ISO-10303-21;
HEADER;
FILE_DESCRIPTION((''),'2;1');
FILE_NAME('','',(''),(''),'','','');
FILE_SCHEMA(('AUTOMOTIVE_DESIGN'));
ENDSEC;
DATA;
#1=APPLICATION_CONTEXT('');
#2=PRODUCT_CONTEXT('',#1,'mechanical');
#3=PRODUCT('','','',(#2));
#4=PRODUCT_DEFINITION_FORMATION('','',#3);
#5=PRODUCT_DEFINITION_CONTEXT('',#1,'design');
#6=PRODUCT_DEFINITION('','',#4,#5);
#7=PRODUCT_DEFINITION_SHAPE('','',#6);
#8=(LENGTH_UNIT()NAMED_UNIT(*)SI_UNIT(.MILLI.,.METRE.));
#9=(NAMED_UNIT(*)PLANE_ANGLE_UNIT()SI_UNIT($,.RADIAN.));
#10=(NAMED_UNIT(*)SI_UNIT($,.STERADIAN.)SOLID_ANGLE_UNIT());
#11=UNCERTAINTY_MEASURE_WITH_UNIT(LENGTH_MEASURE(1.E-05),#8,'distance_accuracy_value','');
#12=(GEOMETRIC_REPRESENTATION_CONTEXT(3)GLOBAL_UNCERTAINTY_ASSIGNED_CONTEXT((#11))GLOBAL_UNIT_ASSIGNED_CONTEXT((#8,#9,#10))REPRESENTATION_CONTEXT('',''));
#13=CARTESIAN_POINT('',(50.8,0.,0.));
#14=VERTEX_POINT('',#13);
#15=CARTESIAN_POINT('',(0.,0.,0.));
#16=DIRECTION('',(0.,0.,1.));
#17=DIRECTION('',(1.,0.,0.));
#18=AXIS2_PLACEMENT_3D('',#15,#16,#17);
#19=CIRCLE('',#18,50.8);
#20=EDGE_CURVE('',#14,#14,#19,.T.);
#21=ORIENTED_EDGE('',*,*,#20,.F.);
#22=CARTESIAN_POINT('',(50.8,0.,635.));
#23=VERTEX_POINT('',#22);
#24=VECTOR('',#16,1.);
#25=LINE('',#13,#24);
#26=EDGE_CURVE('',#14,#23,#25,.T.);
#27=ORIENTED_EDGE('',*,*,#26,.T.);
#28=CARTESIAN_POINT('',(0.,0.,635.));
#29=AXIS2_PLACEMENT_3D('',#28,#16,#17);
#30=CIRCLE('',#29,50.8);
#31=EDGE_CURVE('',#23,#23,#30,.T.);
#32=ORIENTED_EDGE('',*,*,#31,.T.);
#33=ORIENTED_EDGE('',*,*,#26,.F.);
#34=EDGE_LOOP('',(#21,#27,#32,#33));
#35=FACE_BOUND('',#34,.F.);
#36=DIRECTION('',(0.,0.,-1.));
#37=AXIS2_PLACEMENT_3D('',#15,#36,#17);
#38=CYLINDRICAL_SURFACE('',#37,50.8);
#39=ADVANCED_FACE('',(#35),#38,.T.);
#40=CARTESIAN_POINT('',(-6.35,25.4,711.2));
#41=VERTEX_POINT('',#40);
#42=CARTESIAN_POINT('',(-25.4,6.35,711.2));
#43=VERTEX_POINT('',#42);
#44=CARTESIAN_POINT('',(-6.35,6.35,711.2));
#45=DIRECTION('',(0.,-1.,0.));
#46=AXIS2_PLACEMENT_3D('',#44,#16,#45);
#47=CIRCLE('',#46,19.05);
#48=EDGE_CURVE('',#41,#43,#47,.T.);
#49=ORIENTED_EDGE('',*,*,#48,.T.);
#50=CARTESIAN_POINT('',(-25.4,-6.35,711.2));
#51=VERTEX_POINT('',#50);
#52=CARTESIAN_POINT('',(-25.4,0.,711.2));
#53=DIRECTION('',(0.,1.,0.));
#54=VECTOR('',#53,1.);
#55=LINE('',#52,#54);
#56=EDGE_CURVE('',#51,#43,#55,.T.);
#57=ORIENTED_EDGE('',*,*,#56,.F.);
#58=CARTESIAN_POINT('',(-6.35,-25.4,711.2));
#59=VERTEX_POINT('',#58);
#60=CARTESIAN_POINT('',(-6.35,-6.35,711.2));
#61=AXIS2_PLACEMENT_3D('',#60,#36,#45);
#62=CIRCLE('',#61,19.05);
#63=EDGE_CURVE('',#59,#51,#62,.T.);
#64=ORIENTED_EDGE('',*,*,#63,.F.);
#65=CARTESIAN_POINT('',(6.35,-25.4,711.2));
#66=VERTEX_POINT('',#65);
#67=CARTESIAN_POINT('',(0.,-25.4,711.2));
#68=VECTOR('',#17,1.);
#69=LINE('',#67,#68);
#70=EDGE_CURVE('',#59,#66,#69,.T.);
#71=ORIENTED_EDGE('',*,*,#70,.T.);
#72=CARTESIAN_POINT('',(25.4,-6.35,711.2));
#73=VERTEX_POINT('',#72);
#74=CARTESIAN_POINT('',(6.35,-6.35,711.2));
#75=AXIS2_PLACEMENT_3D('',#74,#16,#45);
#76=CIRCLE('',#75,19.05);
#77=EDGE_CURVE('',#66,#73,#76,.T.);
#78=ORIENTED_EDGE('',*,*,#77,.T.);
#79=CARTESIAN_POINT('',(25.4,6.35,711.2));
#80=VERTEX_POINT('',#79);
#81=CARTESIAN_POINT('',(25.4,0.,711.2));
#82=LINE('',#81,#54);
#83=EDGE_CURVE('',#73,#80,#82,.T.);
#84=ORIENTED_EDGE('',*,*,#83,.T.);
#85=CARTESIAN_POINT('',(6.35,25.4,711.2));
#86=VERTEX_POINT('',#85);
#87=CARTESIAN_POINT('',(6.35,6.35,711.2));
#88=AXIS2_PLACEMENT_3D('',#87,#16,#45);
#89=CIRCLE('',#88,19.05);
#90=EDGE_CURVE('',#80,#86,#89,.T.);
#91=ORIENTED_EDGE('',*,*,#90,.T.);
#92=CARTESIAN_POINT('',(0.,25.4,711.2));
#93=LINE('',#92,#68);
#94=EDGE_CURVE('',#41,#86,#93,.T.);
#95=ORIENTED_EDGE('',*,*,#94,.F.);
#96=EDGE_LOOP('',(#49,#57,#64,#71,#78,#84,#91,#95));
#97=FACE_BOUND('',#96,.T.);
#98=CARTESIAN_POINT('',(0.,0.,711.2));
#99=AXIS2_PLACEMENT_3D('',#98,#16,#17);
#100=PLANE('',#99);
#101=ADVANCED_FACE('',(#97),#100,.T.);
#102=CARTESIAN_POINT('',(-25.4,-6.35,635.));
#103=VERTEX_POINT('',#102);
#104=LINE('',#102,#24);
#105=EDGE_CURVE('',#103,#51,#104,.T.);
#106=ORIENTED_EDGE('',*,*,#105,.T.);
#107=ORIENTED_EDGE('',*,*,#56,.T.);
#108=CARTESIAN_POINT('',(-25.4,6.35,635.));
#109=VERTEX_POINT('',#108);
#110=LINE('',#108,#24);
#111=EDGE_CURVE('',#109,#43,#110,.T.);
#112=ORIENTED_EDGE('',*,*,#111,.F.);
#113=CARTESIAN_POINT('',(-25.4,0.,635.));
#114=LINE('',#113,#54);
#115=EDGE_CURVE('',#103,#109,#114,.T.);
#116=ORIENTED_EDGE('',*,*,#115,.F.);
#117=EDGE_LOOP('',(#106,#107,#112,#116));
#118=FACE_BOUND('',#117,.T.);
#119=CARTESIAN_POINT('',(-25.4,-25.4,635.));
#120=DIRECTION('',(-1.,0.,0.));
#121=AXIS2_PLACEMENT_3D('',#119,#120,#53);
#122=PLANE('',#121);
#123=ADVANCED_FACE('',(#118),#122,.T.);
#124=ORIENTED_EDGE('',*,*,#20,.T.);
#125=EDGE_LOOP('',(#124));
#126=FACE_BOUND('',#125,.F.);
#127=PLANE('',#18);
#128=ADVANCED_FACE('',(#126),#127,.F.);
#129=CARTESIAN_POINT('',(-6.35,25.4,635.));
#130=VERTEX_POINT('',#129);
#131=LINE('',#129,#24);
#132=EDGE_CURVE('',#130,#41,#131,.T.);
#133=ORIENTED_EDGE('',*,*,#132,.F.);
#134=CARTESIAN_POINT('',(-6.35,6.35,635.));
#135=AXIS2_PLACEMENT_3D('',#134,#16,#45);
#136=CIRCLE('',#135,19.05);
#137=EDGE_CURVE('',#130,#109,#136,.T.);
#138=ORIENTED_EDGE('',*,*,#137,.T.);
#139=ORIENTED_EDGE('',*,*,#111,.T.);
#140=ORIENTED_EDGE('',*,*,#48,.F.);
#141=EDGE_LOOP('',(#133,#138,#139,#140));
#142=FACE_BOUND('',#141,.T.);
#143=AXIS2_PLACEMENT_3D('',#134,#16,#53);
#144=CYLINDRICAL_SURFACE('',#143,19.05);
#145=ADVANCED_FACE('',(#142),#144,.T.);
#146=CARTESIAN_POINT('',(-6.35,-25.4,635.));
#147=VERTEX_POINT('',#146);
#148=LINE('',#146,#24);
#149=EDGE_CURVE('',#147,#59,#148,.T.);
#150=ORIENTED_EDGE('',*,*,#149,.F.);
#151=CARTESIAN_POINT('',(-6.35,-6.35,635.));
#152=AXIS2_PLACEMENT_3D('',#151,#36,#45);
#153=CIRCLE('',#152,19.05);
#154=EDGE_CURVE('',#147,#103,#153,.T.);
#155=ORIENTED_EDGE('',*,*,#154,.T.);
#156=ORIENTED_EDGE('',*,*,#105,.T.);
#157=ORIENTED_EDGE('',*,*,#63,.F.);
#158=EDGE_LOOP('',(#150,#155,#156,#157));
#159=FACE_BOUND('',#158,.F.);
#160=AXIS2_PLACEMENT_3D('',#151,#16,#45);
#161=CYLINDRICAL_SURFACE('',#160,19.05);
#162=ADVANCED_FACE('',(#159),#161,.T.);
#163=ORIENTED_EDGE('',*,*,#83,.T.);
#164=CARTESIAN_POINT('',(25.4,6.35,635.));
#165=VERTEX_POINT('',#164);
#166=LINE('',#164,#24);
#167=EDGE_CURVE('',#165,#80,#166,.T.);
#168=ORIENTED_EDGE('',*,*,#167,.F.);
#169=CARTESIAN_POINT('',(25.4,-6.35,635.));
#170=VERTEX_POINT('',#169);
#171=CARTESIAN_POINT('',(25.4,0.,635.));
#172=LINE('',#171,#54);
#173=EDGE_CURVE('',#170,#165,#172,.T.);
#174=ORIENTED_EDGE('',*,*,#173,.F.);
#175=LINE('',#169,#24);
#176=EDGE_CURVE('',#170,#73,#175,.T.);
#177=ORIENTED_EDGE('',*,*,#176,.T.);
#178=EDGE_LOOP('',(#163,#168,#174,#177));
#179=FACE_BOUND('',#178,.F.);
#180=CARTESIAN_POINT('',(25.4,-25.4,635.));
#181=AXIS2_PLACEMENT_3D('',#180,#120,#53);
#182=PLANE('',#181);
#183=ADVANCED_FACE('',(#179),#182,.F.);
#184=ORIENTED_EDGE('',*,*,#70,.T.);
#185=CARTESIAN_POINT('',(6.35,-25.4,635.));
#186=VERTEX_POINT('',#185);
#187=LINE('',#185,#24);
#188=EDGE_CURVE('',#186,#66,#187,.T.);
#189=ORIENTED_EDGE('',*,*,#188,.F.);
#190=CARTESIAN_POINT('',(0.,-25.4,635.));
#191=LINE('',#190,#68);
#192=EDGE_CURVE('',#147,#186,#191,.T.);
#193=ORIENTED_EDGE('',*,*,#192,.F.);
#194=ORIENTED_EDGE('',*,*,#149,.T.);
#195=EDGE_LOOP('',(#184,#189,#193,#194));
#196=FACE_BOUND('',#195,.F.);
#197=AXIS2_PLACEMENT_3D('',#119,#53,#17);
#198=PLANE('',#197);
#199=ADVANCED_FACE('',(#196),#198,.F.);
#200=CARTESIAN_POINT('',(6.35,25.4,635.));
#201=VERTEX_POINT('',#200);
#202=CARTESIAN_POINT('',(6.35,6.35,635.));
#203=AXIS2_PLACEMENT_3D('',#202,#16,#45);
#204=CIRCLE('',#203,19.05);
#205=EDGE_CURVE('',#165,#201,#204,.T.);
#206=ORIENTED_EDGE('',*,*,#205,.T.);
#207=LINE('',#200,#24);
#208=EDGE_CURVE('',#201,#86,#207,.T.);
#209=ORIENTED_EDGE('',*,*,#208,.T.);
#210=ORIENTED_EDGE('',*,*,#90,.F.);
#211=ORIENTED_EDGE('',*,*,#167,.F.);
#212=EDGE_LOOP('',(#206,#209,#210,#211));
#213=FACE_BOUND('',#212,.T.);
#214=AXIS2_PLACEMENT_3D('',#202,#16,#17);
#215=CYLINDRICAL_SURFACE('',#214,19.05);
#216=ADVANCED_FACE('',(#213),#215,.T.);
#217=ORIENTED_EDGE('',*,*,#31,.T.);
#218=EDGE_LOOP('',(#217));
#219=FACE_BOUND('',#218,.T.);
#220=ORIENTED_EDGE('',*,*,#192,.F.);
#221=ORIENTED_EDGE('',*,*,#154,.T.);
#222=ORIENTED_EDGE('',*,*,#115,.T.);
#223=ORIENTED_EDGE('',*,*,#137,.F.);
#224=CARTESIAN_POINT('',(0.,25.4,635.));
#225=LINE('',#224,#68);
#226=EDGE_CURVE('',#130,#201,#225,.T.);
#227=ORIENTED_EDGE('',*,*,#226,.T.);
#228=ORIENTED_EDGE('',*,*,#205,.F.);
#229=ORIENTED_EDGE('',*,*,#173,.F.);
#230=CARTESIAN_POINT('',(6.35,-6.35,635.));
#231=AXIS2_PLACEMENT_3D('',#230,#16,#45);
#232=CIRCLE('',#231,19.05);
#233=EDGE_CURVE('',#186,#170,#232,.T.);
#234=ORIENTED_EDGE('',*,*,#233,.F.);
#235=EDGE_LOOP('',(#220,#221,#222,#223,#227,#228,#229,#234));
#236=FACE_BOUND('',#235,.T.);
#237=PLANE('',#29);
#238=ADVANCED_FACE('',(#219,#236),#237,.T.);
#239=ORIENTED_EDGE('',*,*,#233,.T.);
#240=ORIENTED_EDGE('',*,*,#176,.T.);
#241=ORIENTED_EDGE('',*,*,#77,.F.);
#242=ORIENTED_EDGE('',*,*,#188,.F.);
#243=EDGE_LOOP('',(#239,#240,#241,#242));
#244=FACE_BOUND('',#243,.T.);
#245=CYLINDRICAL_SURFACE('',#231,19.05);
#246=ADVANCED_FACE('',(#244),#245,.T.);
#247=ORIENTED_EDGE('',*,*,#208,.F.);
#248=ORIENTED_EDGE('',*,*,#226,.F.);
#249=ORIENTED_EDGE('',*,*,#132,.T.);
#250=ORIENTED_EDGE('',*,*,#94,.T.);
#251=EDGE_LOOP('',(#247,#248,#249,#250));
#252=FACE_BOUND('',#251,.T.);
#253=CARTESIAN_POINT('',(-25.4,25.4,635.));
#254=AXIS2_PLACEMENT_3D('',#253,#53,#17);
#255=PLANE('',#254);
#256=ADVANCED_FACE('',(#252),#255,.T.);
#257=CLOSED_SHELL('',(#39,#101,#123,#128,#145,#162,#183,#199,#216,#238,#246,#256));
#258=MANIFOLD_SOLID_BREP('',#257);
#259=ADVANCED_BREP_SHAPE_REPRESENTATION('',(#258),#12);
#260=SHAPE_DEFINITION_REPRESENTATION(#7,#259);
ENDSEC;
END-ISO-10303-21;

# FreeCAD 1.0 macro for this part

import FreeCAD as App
import Part
import Sketcher

V = App.Vector
Q = App.Units.Quantity


def edges_at(feature, points):
    """Names of the edges that pass closest to the given points."""
    edges = feature.Shape.Edges
    near = lambda p: min(range(len(edges)), key=lambda i: edges[i].distToShape(Part.Vertex(*p))[0])
    return sorted({f"Edge{near(p) + 1}" for p in points})


def add_polygon(sketch, points):
    """Adds a closed chain of lines whose ends are joined by coincident constraints."""
    first, n = sketch.GeometryCount, len(points)
    for a, b in zip(points, points[1:] + points[:1]):
        sketch.addGeometry(Part.LineSegment(App.Vector(*a, 0), App.Vector(*b, 0)), False)
    for i in range(n):
        sketch.addConstraint(Sketcher.Constraint("Coincident", first + i, 2, first + (i + 1) % n, 1))

doc = App.newDocument("Part")
body = doc.addObject("PartDesign::Body", "Body")

sketch1 = body.newObject("Sketcher::SketchObject", "Sketch")
sketch1.AttachmentSupport = (doc.getObject("XY_Plane"), [""])
sketch1.MapMode = "FlatFace"
sketch1.addGeometry(Part.Circle(V(0, 0, 0), V(0, 0, 1), 50.8), False)
sketch1.addConstraint([
    Sketcher.Constraint("Coincident", 0, 3, -1, 1),
    Sketcher.Constraint("Diameter", 0, Q("4 in")),
])
pad1 = body.newObject("PartDesign::Pad", "Pad")
pad1.Profile = sketch1
pad1.Length = Q("25 in")

sketch2 = body.newObject("Sketcher::SketchObject", "Sketch001")
sketch2.AttachmentSupport = (doc.getObject("XY_Plane"), [""])
sketch2.MapMode = "FlatFace"
sketch2.AttachmentOffset = App.Placement(V(0, 0, 25 * 25.4), App.Rotation())
add_polygon(sketch2, [(-25.4, 25.4), (-25.4, -25.4), (25.4, -25.4), (25.4, 25.4)])
sketch2.addConstraint([
    Sketcher.Constraint("Vertical", 0),
    Sketcher.Constraint("Horizontal", 1),
    Sketcher.Constraint("Vertical", 2),
    Sketcher.Constraint("Horizontal", 3),
    Sketcher.Constraint("Symmetric", 0, 2, 2, 2, -1, 1),
    Sketcher.Constraint("Equal", 3, 0),
    Sketcher.Constraint("DistanceX", 1, 1, 1, 2, Q("2 in")),
])
pad2 = body.newObject("PartDesign::Pad", "Pad001")
pad2.Profile = sketch2
pad2.Length = Q("3 in")
doc.recompute()

fillet = body.newObject("PartDesign::Fillet", "Fillet")
fillet.Base = (pad2, edges_at(pad2, [
    (25.4, -25.4, 673.1),
    (-25.4, -25.4, 673.1),
    (25.4, 25.4, 673.1),
    (-25.4, 25.4, 673.1),
]))
fillet.Radius = Q("0.75 in")

doc.recompute()
